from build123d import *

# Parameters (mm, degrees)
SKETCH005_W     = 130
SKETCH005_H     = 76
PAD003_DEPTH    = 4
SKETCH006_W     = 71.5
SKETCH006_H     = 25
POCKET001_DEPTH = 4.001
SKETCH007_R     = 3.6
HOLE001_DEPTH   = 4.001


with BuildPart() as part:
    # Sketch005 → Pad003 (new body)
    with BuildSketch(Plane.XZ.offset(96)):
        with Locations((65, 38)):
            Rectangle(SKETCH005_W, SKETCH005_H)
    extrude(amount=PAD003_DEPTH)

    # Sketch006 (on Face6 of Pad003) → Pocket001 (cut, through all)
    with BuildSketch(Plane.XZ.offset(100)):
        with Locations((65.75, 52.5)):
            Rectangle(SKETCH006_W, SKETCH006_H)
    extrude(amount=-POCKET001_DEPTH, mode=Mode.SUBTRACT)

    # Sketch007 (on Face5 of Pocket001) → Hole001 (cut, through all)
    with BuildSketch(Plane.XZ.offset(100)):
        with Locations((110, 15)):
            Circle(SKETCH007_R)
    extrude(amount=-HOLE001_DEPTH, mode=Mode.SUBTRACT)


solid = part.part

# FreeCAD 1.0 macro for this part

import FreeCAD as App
import Part
import Sketcher

V = App.Vector
Q = App.Units.Quantity


def add_polygon(sketch, points):
    """Adds a closed chain of lines whose ends are joined by coincident constraints."""
    first, n = sketch.GeometryCount, len(points)
    for a, b in zip(points, points[1:] + points[:1]):
        sketch.addGeometry(Part.LineSegment(App.Vector(*a, 0), App.Vector(*b, 0)), False)
    for i in range(n):
        sketch.addConstraint(Sketcher.Constraint("Coincident", first + i, 2, first + (i + 1) % n, 1))

doc = App.newDocument("Part")
body = doc.addObject("PartDesign::Body", "Body")

sketch1 = body.newObject("Sketcher::SketchObject", "Sketch")
sketch1.AttachmentSupport = (doc.getObject("XZ_Plane"), [""])
sketch1.MapMode = "FlatFace"
sketch1.AttachmentOffset = App.Placement(V(0, 0, 96), App.Rotation())
add_polygon(sketch1, [(0, 76), (0, 0), (130, 0), (130, 76)])
sketch1.addConstraint([
    Sketcher.Constraint("Vertical", 0),
    Sketcher.Constraint("Horizontal", 1),
    Sketcher.Constraint("Vertical", 2),
    Sketcher.Constraint("Horizontal", 3),
    Sketcher.Constraint("Coincident", 0, 2, -1, 1),
    Sketcher.Constraint("DistanceX", 1, 1, 1, 2, Q("130 mm")),
    Sketcher.Constraint("DistanceY", 0, 2, 0, 1, Q("76 mm")),
])
pad1 = body.newObject("PartDesign::Pad", "Pad")
pad1.Profile = sketch1
pad1.Length = 4

sketch2 = body.newObject("Sketcher::SketchObject", "Sketch001")
sketch2.AttachmentSupport = (doc.getObject("XZ_Plane"), [""])
sketch2.MapMode = "FlatFace"
sketch2.AttachmentOffset = App.Placement(V(0, 0, 100), App.Rotation())
add_polygon(sketch2, [(30, 65), (30, 40), (102, 40), (102, 65)])
sketch2.addConstraint([
    Sketcher.Constraint("Vertical", 0),
    Sketcher.Constraint("Horizontal", 1),
    Sketcher.Constraint("Vertical", 2),
    Sketcher.Constraint("Horizontal", 3),
    Sketcher.Constraint("DistanceY", 0, 2, 0, 1, Q("25 mm")),
    Sketcher.Constraint("DistanceX", 1, 1, 1, 2, Q("71.5 mm")),
    Sketcher.Constraint("DistanceX", -1, 1, 0, 2, Q("30 mm")),
    Sketcher.Constraint("DistanceY", -1, 1, 0, 2, Q("40 mm")),
])
pocket1 = body.newObject("PartDesign::Pocket", "Pocket")
pocket1.Profile = sketch2
pocket1.Type = "ThroughAll"

sketch3 = body.newObject("Sketcher::SketchObject", "Sketch002")
sketch3.AttachmentSupport = (doc.getObject("XZ_Plane"), [""])
sketch3.MapMode = "FlatFace"
sketch3.AttachmentOffset = App.Placement(V(0, 0, 100), App.Rotation())
sketch3.addGeometry(Part.Circle(V(110, 15, 0), V(0, 0, 1), 3.6), False)
sketch3.addConstraint([
    Sketcher.Constraint("Diameter", 0, Q("7.2 mm")),
    Sketcher.Constraint("DistanceX", -1, 1, 0, 3, Q("110 mm")),
    Sketcher.Constraint("DistanceY", -1, 1, 0, 3, Q("15 mm")),
])
pocket2 = body.newObject("PartDesign::Pocket", "Pocket001")
pocket2.Profile = sketch3
pocket2.Type = "ThroughAll"

doc.recompute()
